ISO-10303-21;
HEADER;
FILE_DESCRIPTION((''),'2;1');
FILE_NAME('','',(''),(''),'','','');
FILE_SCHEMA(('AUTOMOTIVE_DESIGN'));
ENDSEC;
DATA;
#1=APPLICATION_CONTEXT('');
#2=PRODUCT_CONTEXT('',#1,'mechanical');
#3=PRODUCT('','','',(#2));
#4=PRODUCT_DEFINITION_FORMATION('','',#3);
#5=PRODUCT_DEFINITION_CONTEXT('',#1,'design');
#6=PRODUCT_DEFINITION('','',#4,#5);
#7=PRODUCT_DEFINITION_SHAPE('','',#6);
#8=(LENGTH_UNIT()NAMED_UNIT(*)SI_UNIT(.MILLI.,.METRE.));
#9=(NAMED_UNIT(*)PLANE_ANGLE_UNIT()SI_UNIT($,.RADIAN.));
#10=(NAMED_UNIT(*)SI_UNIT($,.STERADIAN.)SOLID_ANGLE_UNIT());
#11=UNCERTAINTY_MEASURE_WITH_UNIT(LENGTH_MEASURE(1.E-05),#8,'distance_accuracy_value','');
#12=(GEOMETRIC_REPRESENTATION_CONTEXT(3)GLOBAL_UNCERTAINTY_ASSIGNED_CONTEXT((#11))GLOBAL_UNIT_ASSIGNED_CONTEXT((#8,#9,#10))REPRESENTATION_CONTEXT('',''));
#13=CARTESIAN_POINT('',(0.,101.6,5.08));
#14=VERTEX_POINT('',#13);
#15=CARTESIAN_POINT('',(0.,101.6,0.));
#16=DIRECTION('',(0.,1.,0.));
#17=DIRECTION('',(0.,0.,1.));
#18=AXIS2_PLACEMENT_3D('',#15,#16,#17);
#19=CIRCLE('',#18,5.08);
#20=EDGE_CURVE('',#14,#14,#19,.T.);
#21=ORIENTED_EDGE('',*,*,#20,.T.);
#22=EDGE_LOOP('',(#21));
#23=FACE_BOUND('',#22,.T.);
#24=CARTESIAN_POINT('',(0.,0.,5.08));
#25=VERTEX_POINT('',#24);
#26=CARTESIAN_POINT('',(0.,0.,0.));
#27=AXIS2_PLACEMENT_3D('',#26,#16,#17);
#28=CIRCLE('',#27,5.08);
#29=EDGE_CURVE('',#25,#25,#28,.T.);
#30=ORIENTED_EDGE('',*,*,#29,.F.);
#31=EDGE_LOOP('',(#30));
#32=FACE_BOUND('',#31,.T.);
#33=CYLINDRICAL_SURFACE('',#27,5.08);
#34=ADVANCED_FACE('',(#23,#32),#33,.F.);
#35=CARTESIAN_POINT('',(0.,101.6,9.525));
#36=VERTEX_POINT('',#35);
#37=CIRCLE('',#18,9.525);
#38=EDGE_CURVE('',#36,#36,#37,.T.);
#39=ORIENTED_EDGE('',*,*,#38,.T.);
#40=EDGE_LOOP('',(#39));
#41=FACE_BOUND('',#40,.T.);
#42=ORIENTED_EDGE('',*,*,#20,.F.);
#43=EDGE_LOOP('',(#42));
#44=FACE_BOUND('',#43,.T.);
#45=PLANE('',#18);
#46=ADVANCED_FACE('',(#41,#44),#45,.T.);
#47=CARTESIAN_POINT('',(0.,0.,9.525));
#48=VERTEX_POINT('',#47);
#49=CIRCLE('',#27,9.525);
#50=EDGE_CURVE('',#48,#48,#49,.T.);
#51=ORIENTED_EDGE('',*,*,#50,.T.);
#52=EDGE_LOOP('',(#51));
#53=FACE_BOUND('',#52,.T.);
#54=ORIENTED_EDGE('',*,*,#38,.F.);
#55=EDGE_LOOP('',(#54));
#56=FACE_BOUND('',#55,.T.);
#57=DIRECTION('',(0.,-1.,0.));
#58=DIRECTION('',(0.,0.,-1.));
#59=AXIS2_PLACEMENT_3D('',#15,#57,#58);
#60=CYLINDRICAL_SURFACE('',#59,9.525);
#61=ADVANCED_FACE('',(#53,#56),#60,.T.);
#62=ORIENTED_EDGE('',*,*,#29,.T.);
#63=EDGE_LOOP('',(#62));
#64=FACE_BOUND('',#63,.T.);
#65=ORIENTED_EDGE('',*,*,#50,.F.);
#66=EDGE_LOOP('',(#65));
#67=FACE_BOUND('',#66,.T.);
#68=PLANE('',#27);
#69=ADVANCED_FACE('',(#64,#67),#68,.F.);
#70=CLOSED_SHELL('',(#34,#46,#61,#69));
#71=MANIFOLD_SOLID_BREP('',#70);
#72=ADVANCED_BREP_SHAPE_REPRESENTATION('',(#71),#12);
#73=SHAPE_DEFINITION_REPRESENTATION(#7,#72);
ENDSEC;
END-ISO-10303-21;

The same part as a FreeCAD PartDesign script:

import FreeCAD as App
import Part
import Sketcher
from FreeCAD import Vector
Q = App.Units.Quantity

doc = App.newDocument("Part")
body = doc.addObject("PartDesign::Body", "Body")

sketch1 = doc.addObject("Sketcher::SketchObject", "Sketch")
body.addObject(sketch1)
sketch1.AttachmentSupport = (doc.XZ_Plane, [""])
sketch1.MapMode = "FlatFace"
sketch1.addGeometry(Part.Circle(Vector(0, 0, 0), Vector(0, 0, 1), 10), False)
sketch1.addConstraint(Sketcher.Constraint("Coincident", 0, 3, -1, 1))
sketch1.addConstraint(Sketcher.Constraint("Diameter", 0, Q("0.75 in")))
pad1 = doc.addObject("PartDesign::Pad", "Pad")
body.addObject(pad1)
pad1.Profile = sketch1
pad1.Length = Q("4 in")
pad1.Reversed = True

sketch2 = doc.addObject("Sketcher::SketchObject", "Sketch001")
body.addObject(sketch2)
sketch2.AttachmentSupport = (doc.XZ_Plane, [""])
sketch2.MapMode = "FlatFace"
sketch2.AttachmentOffset = App.Placement(Vector(0, 0, -4 * 25.4), App.Rotation())
sketch2.addGeometry(Part.Circle(Vector(0, 0, 0), Vector(0, 0, 1), 5), False)
sketch2.addConstraint(Sketcher.Constraint("Coincident", 0, 3, -1, 1))
sketch2.addConstraint(Sketcher.Constraint("Diameter", 0, Q("0.4 in")))
pocket1 = doc.addObject("PartDesign::Pocket", "Pocket")
body.addObject(pocket1)
pocket1.Profile = sketch2
pocket1.Type = "ThroughAll"
pocket1.Reversed = True

doc.recompute()
